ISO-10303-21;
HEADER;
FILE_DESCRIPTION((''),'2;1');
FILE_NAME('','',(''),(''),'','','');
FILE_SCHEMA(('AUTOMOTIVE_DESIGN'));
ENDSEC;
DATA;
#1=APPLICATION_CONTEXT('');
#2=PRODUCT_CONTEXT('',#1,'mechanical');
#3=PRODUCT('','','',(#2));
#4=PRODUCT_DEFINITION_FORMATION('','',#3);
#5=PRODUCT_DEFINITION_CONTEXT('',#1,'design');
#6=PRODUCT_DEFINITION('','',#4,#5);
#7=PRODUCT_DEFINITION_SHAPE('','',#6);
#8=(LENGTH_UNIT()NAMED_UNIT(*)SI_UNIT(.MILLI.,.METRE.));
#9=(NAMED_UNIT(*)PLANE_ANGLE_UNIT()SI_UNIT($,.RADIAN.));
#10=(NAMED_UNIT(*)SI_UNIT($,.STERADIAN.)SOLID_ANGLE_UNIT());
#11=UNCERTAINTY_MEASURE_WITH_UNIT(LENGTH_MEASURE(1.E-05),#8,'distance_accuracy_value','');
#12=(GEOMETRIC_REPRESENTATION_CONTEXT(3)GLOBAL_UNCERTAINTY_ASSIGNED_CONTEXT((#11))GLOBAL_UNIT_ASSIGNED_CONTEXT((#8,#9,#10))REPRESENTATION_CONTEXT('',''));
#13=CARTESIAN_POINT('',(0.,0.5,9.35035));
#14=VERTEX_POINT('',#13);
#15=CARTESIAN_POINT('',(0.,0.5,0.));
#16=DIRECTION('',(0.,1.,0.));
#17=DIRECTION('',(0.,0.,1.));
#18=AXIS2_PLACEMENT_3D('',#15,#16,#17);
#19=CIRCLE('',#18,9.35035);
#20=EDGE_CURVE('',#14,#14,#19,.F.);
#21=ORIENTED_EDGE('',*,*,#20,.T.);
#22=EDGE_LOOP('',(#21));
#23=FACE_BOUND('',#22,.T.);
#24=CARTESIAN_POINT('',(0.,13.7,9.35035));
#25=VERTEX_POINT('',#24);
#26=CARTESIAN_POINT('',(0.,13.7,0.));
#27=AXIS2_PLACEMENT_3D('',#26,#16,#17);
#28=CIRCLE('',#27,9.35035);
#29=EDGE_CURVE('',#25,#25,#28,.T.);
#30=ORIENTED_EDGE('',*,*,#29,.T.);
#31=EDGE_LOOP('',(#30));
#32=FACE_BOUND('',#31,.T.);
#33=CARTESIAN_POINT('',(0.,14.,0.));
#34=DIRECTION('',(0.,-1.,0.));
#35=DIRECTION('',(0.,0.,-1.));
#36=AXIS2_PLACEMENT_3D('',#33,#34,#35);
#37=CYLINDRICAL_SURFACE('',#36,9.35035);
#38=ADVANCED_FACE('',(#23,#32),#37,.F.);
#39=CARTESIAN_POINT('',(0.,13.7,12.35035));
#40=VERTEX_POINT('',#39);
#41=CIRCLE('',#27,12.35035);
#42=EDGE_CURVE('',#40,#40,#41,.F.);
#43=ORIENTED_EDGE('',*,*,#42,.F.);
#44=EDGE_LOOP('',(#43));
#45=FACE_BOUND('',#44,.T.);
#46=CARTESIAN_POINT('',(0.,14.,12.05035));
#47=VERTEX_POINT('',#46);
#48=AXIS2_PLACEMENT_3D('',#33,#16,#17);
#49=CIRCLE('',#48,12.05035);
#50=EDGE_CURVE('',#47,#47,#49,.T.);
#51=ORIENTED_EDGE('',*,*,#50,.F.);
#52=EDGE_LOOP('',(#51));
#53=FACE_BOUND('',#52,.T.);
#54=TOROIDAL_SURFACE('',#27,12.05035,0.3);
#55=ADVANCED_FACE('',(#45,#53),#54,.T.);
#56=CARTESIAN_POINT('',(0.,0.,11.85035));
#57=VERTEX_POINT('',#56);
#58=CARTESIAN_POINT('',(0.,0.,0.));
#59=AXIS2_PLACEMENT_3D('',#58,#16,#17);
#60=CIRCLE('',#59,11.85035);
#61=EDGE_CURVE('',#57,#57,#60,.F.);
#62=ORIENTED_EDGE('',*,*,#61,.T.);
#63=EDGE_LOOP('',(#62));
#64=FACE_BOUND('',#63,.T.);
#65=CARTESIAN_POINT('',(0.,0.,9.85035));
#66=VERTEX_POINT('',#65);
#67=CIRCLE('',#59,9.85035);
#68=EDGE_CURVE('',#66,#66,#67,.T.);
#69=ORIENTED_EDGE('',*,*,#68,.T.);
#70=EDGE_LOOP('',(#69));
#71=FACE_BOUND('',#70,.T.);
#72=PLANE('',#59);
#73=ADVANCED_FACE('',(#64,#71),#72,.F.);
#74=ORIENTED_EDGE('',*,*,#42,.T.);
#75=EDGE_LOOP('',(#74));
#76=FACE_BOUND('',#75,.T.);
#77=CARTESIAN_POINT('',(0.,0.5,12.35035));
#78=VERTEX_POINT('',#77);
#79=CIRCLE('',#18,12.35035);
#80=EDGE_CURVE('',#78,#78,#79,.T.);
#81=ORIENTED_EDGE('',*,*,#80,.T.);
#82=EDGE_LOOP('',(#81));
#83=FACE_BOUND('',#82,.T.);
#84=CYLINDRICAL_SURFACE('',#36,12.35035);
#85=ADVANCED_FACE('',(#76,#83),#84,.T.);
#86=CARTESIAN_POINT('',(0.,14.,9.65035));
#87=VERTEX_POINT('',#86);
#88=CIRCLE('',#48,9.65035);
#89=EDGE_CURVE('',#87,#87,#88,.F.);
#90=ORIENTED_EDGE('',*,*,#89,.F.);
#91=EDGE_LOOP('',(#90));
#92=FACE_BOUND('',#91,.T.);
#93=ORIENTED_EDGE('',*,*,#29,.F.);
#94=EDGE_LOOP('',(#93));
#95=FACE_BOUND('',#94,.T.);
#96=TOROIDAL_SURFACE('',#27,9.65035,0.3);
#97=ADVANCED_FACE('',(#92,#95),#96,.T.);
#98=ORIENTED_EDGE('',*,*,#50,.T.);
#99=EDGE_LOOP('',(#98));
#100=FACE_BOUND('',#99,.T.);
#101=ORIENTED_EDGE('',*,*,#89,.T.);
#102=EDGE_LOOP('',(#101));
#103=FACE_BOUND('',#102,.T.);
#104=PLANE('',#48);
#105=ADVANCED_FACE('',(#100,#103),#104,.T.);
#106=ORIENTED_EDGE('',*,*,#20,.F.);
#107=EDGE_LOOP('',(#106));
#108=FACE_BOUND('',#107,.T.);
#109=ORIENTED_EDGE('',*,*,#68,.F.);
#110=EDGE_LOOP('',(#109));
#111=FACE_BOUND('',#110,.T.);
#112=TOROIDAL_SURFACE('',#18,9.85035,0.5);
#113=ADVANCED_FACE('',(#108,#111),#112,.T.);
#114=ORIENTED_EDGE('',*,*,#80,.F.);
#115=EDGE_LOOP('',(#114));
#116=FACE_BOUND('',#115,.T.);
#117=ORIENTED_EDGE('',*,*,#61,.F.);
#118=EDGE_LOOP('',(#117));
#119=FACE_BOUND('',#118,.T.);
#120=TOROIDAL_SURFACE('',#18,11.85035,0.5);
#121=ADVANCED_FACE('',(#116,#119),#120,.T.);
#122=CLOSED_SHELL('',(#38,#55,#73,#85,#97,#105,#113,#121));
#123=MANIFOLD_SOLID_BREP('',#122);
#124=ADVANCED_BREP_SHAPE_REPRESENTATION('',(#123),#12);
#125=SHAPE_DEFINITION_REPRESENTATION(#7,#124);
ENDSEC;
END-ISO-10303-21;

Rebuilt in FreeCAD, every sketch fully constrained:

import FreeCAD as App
import Part
import Sketcher

V = App.Vector
Q = App.Units.Quantity


def edges_at(feature, points):
    """Names of the edges that pass closest to the given points."""
    edges = feature.Shape.Edges
    near = lambda p: min(range(len(edges)), key=lambda i: edges[i].distToShape(Part.Vertex(*p))[0])
    return sorted({f"Edge{near(p) + 1}" for p in points})

doc = App.newDocument("Part")
body = doc.addObject("PartDesign::Body", "Body")

# Sketch on XZ plane
sketch1 = body.newObject("Sketcher::SketchObject", "Sketch")
sketch1.AttachmentSupport = (doc.getObject("XZ_Plane"), [""])
sketch1.MapMode = "FlatFace"
sketch1.addGeometry(Part.Circle(V(0, 0, 0), V(0, 0, 1), 12), False)
sketch1.addGeometry(Part.Circle(V(0, 0, 0), V(0, 0, 1), 9), False)
sketch1.addConstraint(Sketcher.Constraint("Coincident", 0, 3, -1, 1))
sketch1.addConstraint(Sketcher.Constraint("Coincident", 1, 3, -1, 1))
sketch1.addConstraint(Sketcher.Constraint("Diameter", 0, Q("24.7007 mm")))
sketch1.addConstraint(Sketcher.Constraint("Diameter", 1, Q("18.7007 mm")))
pad1 = body.newObject("PartDesign::Pad", "Pad")
pad1.Profile = sketch1
pad1.Length = 14
pad1.Reversed = True
doc.recompute()

fillet = body.newObject("PartDesign::Fillet", "Fillet")
fillet.Base = (pad1, edges_at(pad1, [(0, 14, -12.35)]))
fillet.Radius = 0.3
doc.recompute()

fillet2 = body.newObject("PartDesign::Fillet", "Fillet001")
fillet2.Base = (fillet, edges_at(fillet, [(0, 14, -9.35)]))
fillet2.Radius = 0.3
doc.recompute()

fillet3 = body.newObject("PartDesign::Fillet", "Fillet002")
fillet3.Base = (fillet2, edges_at(fillet2, [(0, 0, -12.35)]))
fillet3.Radius = 0.5
doc.recompute()

fillet4 = body.newObject("PartDesign::Fillet", "Fillet003")
fillet4.Base = (fillet3, edges_at(fillet3, [(0, 0, -9.35)]))
fillet4.Radius = 0.5

doc.recompute()
